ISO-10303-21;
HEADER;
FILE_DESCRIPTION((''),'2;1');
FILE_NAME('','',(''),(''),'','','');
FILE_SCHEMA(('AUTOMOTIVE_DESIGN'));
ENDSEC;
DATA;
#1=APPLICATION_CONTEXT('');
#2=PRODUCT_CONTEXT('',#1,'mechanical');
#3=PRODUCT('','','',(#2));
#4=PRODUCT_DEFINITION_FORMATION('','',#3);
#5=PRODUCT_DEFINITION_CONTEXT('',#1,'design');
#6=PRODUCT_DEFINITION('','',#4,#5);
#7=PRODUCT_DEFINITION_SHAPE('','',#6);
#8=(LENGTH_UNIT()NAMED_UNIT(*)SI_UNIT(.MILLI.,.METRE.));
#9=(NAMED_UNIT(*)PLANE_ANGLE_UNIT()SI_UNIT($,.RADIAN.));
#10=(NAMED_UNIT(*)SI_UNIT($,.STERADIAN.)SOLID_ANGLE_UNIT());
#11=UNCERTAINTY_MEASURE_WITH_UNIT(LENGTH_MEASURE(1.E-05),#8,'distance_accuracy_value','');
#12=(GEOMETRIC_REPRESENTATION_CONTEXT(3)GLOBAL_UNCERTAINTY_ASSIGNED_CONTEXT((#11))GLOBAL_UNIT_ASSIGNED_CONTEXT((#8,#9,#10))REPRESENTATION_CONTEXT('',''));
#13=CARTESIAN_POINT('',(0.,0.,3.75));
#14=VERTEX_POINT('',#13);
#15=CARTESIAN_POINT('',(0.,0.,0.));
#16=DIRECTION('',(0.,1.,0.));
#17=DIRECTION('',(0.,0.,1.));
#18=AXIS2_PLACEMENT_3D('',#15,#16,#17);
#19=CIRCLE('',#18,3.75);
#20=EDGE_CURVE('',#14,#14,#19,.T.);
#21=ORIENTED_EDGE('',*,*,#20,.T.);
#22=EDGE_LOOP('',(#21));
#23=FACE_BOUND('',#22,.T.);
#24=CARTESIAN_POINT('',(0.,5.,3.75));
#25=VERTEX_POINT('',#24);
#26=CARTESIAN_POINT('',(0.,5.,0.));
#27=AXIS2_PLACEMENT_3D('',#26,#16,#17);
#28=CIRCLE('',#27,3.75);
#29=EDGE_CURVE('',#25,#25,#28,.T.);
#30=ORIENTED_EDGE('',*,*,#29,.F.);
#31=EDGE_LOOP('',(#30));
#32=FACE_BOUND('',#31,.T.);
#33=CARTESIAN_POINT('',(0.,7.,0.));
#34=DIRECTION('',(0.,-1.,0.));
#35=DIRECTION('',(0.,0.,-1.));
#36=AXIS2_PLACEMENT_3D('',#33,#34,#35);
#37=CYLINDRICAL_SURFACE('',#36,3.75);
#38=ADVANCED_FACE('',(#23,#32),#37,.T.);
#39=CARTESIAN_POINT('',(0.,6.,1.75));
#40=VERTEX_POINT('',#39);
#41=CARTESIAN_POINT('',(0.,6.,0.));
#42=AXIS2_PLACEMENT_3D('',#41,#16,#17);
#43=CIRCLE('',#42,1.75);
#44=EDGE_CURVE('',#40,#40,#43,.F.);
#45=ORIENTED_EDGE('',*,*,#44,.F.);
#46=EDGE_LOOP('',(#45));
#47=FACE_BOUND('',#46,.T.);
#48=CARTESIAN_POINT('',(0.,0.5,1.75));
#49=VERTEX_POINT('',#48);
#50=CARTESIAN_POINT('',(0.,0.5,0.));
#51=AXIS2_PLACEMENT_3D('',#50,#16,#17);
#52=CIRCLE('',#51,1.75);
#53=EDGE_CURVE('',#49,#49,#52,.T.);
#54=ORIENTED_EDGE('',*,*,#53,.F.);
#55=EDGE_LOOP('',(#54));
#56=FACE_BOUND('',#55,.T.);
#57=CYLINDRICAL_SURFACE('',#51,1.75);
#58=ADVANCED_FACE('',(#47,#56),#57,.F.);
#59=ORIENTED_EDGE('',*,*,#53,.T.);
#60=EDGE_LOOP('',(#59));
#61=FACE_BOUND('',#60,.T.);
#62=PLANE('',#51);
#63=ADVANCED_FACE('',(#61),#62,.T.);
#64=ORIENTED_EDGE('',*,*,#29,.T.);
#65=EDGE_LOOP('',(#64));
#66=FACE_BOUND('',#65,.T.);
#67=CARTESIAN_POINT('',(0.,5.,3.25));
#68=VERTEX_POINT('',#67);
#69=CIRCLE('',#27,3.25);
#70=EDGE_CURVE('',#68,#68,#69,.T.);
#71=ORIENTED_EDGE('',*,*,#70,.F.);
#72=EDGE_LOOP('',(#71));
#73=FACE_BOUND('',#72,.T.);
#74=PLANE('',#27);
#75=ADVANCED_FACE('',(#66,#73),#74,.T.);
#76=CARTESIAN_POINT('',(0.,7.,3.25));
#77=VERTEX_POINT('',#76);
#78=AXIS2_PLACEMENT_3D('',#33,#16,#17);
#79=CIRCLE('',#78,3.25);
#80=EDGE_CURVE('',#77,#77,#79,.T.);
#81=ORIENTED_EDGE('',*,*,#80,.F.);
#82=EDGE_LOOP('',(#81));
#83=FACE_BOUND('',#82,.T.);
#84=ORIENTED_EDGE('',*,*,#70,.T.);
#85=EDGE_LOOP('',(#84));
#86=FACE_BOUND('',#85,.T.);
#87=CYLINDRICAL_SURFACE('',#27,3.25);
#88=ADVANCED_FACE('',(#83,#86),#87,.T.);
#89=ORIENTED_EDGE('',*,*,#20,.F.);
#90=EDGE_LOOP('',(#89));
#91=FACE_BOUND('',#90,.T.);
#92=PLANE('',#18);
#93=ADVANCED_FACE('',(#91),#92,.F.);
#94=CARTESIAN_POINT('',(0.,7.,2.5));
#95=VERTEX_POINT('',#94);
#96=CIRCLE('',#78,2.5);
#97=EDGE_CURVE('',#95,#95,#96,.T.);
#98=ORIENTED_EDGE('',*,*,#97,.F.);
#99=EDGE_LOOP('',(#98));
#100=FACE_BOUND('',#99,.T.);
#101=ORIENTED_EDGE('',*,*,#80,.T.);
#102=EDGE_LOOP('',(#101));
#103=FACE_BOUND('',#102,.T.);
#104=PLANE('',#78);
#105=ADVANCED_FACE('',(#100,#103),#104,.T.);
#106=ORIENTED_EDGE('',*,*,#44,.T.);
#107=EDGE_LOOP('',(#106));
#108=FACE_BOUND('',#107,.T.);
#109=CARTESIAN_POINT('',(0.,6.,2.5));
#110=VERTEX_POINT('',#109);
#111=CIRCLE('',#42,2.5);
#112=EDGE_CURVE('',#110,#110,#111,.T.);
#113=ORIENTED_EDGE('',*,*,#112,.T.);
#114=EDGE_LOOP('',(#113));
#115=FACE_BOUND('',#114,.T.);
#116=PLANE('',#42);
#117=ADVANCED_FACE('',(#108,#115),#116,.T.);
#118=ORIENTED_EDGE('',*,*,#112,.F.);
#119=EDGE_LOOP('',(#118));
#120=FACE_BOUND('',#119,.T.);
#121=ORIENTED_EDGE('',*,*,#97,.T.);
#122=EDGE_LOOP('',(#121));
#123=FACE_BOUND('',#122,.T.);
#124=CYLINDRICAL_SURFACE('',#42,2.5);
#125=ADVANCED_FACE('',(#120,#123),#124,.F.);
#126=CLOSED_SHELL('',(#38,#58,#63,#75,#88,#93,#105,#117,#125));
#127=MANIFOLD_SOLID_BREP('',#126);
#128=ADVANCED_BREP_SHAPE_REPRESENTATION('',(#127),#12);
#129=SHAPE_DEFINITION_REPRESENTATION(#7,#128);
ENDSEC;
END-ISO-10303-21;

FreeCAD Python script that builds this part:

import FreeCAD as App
import Part
import Sketcher
from FreeCAD import Vector

doc = App.newDocument("Part")
body = doc.addObject("PartDesign::Body", "Body")

# Sketch on XZ plane
sketch1 = doc.addObject("Sketcher::SketchObject", "Sketch")
body.addObject(sketch1)
sketch1.AttachmentSupport = (doc.XZ_Plane, [""])
sketch1.MapMode = "FlatFace"
sketch1.addGeometry(Part.Circle(Vector(0, 0, 0), Vector(0, 0, 1), 3.75), False)
sketch1.addConstraint(Sketcher.Constraint("Coincident", 0, 3, -1, 1))
sketch1.addConstraint(Sketcher.Constraint("Diameter", 0, 7.5))
pad1 = doc.addObject("PartDesign::Pad", "Pad")
body.addObject(pad1)
pad1.Profile = sketch1
pad1.Length = 7
pad1.Reversed = True

# Sketch on XZ plane
sketch2 = doc.addObject("Sketcher::SketchObject", "Sketch001")
body.addObject(sketch2)
sketch2.AttachmentSupport = (doc.XZ_Plane, [""])
sketch2.MapMode = "FlatFace"
sketch2.AttachmentOffset = App.Placement(Vector(0, 0, -7), App.Rotation())
sketch2.addGeometry(Part.Circle(Vector(0, 0, 0), Vector(0, 0, 1), 3.75), False)
sketch2.addGeometry(Part.Circle(Vector(0, 0, 0), Vector(0, 0, 1), 3.25), False)
sketch2.addConstraint(Sketcher.Constraint("Coincident", 0, 3, -1, 1))
sketch2.addConstraint(Sketcher.Constraint("Coincident", 1, 3, -1, 1))
sketch2.addConstraint(Sketcher.Constraint("Diameter", 0, 7.5))
sketch2.addConstraint(Sketcher.Constraint("Diameter", 1, 6.5))
pocket1 = doc.addObject("PartDesign::Pocket", "Pocket")
body.addObject(pocket1)
pocket1.Profile = sketch2
pocket1.Length = 2
pocket1.Reversed = True

# Sketch on XZ plane
sketch3 = doc.addObject("Sketcher::SketchObject", "Sketch002")
body.addObject(sketch3)
sketch3.AttachmentSupport = (doc.XZ_Plane, [""])
sketch3.MapMode = "FlatFace"
sketch3.AttachmentOffset = App.Placement(Vector(0, 0, -7), App.Rotation())
sketch3.addGeometry(Part.Circle(Vector(0, 0, 0), Vector(0, 0, 1), 1.75), False)
sketch3.addConstraint(Sketcher.Constraint("Coincident", 0, 3, -1, 1))
sketch3.addConstraint(Sketcher.Constraint("Diameter", 0, 3.5))
pocket2 = doc.addObject("PartDesign::Pocket", "Pocket001")
body.addObject(pocket2)
pocket2.Profile = sketch3
pocket2.Length = 6.5
pocket2.Reversed = True

# Sketch on XZ plane
sketch4 = doc.addObject("Sketcher::SketchObject", "Sketch003")
body.addObject(sketch4)
sketch4.AttachmentSupport = (doc.XZ_Plane, [""])
sketch4.MapMode = "FlatFace"
sketch4.AttachmentOffset = App.Placement(Vector(0, 0, -7), App.Rotation())
sketch4.addGeometry(Part.Circle(Vector(0, 0, 0), Vector(0, 0, 1), 2.5), False)
sketch4.addConstraint(Sketcher.Constraint("Coincident", 0, 3, -1, 1))
sketch4.addConstraint(Sketcher.Constraint("Diameter", 0, 5.0))
pocket3 = doc.addObject("PartDesign::Pocket", "Pocket002")
body.addObject(pocket3)
pocket3.Profile = sketch4
pocket3.Length = 1
pocket3.Reversed = True

doc.recompute()
